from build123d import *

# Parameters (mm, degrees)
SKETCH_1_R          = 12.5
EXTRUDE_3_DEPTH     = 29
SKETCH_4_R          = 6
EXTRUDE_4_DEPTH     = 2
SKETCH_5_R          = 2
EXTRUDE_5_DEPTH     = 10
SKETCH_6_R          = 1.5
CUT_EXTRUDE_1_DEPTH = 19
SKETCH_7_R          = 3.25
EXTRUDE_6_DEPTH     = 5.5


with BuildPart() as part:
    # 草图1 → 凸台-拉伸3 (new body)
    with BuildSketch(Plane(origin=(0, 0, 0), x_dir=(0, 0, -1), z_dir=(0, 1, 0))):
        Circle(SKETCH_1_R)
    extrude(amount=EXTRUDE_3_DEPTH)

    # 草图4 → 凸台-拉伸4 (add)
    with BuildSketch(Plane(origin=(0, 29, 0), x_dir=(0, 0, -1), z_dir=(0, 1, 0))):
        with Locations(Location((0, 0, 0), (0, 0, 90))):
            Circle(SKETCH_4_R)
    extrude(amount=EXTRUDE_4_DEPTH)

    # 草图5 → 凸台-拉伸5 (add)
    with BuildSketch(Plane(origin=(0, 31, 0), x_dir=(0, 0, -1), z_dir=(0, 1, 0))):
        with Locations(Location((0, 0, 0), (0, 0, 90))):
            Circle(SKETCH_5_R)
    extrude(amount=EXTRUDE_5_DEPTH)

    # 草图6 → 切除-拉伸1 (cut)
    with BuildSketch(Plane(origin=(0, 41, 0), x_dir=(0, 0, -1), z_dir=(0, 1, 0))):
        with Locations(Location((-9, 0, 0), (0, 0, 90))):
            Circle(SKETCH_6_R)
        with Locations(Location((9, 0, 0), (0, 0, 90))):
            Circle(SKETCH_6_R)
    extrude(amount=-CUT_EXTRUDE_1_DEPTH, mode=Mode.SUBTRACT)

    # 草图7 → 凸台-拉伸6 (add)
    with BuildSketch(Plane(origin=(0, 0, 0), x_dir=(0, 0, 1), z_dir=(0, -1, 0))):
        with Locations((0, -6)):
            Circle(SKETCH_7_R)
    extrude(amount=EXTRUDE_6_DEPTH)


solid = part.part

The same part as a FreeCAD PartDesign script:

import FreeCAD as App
import Part
import Sketcher
from FreeCAD import Vector

doc = App.newDocument("Part")
body = doc.addObject("PartDesign::Body", "Body")

sketch1 = body.newObject("Sketcher::SketchObject", "Sketch")
sketch1.AttachmentSupport = (doc.getObject("XZ_Plane"), [""])
sketch1.MapMode = "FlatFace"
sketch1.addGeometry(Part.Circle(Vector(0, 0, 0), Vector(0, 0, 1), 12.5), False)
sketch1.addConstraint([
    Sketcher.Constraint("Coincident", 0, 3, -1, 1),
    Sketcher.Constraint("Diameter", 0, 25.0),
])
pad1 = body.newObject("PartDesign::Pad", "Pad")
pad1.Profile = sketch1
pad1.Length = 29
pad1.Reversed = True

sketch2 = body.newObject("Sketcher::SketchObject", "Sketch001")
sketch2.AttachmentSupport = (doc.getObject("XZ_Plane"), [""])
sketch2.MapMode = "FlatFace"
sketch2.AttachmentOffset = App.Placement(Vector(0, 0, -29), App.Rotation())
sketch2.addGeometry(Part.Circle(Vector(0, 0, 0), Vector(0, 0, 1), 6), False)
sketch2.addConstraint([
    Sketcher.Constraint("Coincident", 0, 3, -1, 1),
    Sketcher.Constraint("Diameter", 0, 12.0),
])
pad2 = body.newObject("PartDesign::Pad", "Pad001")
pad2.Profile = sketch2
pad2.Length = 2
pad2.Reversed = True

sketch3 = body.newObject("Sketcher::SketchObject", "Sketch002")
sketch3.AttachmentSupport = (doc.getObject("XZ_Plane"), [""])
sketch3.MapMode = "FlatFace"
sketch3.AttachmentOffset = App.Placement(Vector(0, 0, -31), App.Rotation())
sketch3.addGeometry(Part.Circle(Vector(0, 0, 0), Vector(0, 0, 1), 2), False)
sketch3.addConstraint([
    Sketcher.Constraint("Coincident", 0, 3, -1, 1),
    Sketcher.Constraint("Diameter", 0, 4.0),
])
pad3 = body.newObject("PartDesign::Pad", "Pad002")
pad3.Profile = sketch3
pad3.Length = 10
pad3.Reversed = True

sketch4 = body.newObject("Sketcher::SketchObject", "Sketch003")
sketch4.AttachmentSupport = (doc.getObject("XZ_Plane"), [""])
sketch4.MapMode = "FlatFace"
sketch4.AttachmentOffset = App.Placement(Vector(0, 0, -41), App.Rotation())
sketch4.addGeometry([
    Part.Circle(Vector(0, 9, 0), Vector(0, 0, 1), 1.5),
    Part.Circle(Vector(0, -9, 0), Vector(0, 0, 1), 1.5),
], False)
sketch4.addConstraint([
    Sketcher.Constraint("Equal", 0, 1),
    Sketcher.Constraint("Symmetric", 0, 3, 1, 3, -1, 1),
    Sketcher.Constraint("PointOnObject", 0, 3, -2),
    Sketcher.Constraint("Diameter", 0, 3.0),
    Sketcher.Constraint("DistanceY", -1, 1, 0, 3, 9.0),
])
pocket1 = body.newObject("PartDesign::Pocket", "Pocket")
pocket1.Profile = sketch4
pocket1.Length = 19
pocket1.Reversed = True

sketch5 = body.newObject("Sketcher::SketchObject", "Sketch004")
sketch5.AttachmentSupport = (doc.getObject("XZ_Plane"), [""])
sketch5.MapMode = "FlatFace"
sketch5.addGeometry(Part.Circle(Vector(6, 0, 0), Vector(0, 0, 1), 3.25), False)
sketch5.addConstraint([
    Sketcher.Constraint("PointOnObject", 0, 3, -1),
    Sketcher.Constraint("Diameter", 0, 6.5),
    Sketcher.Constraint("DistanceX", -1, 1, 0, 3, 6.0),
])
pad4 = body.newObject("PartDesign::Pad", "Pad003")
pad4.Profile = sketch5
pad4.Length = 5.5

doc.recompute()
